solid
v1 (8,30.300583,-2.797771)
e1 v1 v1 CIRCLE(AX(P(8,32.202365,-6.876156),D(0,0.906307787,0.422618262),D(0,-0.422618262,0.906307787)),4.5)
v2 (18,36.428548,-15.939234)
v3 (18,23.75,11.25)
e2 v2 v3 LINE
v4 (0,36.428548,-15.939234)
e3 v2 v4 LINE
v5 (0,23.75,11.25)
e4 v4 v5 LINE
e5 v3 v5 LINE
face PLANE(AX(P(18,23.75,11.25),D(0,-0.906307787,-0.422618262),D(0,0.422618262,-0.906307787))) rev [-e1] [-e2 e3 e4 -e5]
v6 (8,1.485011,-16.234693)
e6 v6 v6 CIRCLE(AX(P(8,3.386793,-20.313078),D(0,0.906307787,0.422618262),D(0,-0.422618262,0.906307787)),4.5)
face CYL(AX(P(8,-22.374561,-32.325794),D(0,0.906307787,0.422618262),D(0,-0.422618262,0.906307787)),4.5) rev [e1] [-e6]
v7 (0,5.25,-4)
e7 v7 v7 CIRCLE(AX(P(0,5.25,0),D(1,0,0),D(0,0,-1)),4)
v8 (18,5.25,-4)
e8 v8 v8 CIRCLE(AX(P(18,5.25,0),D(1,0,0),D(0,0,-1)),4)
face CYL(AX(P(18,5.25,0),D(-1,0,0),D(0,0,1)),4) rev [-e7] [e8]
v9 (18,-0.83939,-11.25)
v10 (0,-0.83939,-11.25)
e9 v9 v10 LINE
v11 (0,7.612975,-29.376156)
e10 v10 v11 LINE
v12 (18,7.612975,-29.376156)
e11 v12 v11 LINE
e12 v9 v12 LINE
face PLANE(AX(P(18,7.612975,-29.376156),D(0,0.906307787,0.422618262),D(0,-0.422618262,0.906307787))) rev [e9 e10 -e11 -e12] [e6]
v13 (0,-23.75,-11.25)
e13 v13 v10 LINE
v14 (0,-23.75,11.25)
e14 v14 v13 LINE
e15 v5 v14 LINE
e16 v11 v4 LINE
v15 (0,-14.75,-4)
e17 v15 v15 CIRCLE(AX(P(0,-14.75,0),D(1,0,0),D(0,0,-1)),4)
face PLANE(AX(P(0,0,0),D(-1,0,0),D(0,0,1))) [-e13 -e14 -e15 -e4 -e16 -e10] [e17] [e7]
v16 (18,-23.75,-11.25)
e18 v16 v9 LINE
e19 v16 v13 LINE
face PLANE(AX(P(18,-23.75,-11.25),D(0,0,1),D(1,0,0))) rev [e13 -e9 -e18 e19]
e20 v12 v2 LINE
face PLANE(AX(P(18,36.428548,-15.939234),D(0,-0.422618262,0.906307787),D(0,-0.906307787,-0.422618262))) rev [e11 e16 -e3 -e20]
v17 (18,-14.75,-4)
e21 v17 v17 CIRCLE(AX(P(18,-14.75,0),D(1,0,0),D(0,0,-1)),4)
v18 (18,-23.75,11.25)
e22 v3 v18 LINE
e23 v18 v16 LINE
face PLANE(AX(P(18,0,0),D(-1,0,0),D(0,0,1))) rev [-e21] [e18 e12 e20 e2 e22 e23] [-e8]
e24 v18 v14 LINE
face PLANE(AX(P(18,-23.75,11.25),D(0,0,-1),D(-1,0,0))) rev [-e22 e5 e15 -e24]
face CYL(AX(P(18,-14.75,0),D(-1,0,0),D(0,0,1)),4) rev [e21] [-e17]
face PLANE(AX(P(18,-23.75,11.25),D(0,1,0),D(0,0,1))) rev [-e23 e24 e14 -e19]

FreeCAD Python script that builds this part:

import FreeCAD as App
import Part
import Sketcher
from FreeCAD import Vector
Q = App.Units.Quantity

doc = App.newDocument("Part")
body = doc.addObject("PartDesign::Body", "Body")

sketch1 = doc.addObject("Sketcher::SketchObject", "Sketch")
body.addObject(sketch1)
sketch1.AttachmentSupport = (doc.YZ_Plane, [""])
sketch1.MapMode = "FlatFace"
sketch1.addGeometry([
    Part.LineSegment(Vector(36.4, -15.9, 0), Vector(23.8, 11.2, 0)),
    Part.LineSegment(Vector(23.8, 11.2, 0), Vector(-23.8, 11.2, 0)),
    Part.LineSegment(Vector(-23.8, 11.2, 0), Vector(-23.8, -11.2, 0)),
    Part.LineSegment(Vector(-23.8, -11.2, 0), Vector(-0.8, -11.2, 0)),
    Part.LineSegment(Vector(-0.8, -11.2, 0), Vector(7.6, -29.4, 0)),
    Part.LineSegment(Vector(7.6, -29.4, 0), Vector(36.4, -15.9, 0)),
    Part.Circle(Vector(-14.8, 0, 0), Vector(0, 0, 1), 4),
    Part.Circle(Vector(5.2, 0, 0), Vector(0, 0, 1), 4),
], False)
sketch1.addConstraint([
    Sketcher.Constraint("Coincident", 0, 2, 1, 1),
    Sketcher.Constraint("Coincident", 1, 2, 2, 1),
    Sketcher.Constraint("Coincident", 2, 2, 3, 1),
    Sketcher.Constraint("Coincident", 3, 2, 4, 1),
    Sketcher.Constraint("Coincident", 4, 2, 5, 1),
    Sketcher.Constraint("Coincident", 5, 2, 0, 1),
    Sketcher.Constraint("Horizontal", 1),
    Sketcher.Constraint("Vertical", 2),
    Sketcher.Constraint("Horizontal", 3),
    Sketcher.Constraint("Equal", 6, 7),
    Sketcher.Constraint("Symmetric", 0, 2, 2, 2, -1, 1),
    Sketcher.Constraint("PointOnObject", 6, 3, -1),
    Sketcher.Constraint("PointOnObject", 7, 3, -1),
    Sketcher.Constraint("Parallel", 0, 4),
    Sketcher.Constraint("Perpendicular", 4, 5),
    Sketcher.Constraint("Diameter", 6, Q("8 mm")),
    Sketcher.Constraint("Angle", 0, Q("115 deg")),
    Sketcher.Constraint("Distance", 0, Q("30 mm")),
    Sketcher.Constraint("Distance", 4, Q("20 mm")),
    Sketcher.Constraint("DistanceX", 1, 2, 1, 1, Q("47.5 mm")),
    Sketcher.Constraint("DistanceY", 2, 2, 2, 1, Q("22.5 mm")),
    Sketcher.Constraint("DistanceX", 6, 3, 7, 3, Q("20 mm")),
    Sketcher.Constraint("DistanceX", 1, 2, 6, 3, Q("9 mm")),
])
pad1 = doc.addObject("PartDesign::Pad", "Pad")
body.addObject(pad1)
pad1.Profile = sketch1
pad1.Length = 18

sketch2 = doc.addObject("Sketcher::SketchObject", "Sketch001")
body.addObject(sketch2)
sketch2.Placement = App.Placement(Vector(0, 23.817103, 11.106097), App.Rotation(Vector(1, 0, 0), Vector(0, 0.422618262, -0.906307787), Vector(0, 0.906307787, 0.422618262), "ZXY"))
sketch2.addGeometry(Part.Circle(Vector(8, 19.8, 0), Vector(0, 0, 1), 4.5), False)
sketch2.addConstraint([
    Sketcher.Constraint("Diameter", 0, Q("9 mm")),
    Sketcher.Constraint("DistanceX", -1, 1, 0, 3, Q("8 mm")),
    Sketcher.Constraint("DistanceY", -1, 1, 0, 3, Q("19.841221 mm")),
])
pocket1 = doc.addObject("PartDesign::Pocket", "Pocket")
body.addObject(pocket1)
pocket1.Profile = sketch2
pocket1.Type = "ThroughAll"

doc.recompute()
